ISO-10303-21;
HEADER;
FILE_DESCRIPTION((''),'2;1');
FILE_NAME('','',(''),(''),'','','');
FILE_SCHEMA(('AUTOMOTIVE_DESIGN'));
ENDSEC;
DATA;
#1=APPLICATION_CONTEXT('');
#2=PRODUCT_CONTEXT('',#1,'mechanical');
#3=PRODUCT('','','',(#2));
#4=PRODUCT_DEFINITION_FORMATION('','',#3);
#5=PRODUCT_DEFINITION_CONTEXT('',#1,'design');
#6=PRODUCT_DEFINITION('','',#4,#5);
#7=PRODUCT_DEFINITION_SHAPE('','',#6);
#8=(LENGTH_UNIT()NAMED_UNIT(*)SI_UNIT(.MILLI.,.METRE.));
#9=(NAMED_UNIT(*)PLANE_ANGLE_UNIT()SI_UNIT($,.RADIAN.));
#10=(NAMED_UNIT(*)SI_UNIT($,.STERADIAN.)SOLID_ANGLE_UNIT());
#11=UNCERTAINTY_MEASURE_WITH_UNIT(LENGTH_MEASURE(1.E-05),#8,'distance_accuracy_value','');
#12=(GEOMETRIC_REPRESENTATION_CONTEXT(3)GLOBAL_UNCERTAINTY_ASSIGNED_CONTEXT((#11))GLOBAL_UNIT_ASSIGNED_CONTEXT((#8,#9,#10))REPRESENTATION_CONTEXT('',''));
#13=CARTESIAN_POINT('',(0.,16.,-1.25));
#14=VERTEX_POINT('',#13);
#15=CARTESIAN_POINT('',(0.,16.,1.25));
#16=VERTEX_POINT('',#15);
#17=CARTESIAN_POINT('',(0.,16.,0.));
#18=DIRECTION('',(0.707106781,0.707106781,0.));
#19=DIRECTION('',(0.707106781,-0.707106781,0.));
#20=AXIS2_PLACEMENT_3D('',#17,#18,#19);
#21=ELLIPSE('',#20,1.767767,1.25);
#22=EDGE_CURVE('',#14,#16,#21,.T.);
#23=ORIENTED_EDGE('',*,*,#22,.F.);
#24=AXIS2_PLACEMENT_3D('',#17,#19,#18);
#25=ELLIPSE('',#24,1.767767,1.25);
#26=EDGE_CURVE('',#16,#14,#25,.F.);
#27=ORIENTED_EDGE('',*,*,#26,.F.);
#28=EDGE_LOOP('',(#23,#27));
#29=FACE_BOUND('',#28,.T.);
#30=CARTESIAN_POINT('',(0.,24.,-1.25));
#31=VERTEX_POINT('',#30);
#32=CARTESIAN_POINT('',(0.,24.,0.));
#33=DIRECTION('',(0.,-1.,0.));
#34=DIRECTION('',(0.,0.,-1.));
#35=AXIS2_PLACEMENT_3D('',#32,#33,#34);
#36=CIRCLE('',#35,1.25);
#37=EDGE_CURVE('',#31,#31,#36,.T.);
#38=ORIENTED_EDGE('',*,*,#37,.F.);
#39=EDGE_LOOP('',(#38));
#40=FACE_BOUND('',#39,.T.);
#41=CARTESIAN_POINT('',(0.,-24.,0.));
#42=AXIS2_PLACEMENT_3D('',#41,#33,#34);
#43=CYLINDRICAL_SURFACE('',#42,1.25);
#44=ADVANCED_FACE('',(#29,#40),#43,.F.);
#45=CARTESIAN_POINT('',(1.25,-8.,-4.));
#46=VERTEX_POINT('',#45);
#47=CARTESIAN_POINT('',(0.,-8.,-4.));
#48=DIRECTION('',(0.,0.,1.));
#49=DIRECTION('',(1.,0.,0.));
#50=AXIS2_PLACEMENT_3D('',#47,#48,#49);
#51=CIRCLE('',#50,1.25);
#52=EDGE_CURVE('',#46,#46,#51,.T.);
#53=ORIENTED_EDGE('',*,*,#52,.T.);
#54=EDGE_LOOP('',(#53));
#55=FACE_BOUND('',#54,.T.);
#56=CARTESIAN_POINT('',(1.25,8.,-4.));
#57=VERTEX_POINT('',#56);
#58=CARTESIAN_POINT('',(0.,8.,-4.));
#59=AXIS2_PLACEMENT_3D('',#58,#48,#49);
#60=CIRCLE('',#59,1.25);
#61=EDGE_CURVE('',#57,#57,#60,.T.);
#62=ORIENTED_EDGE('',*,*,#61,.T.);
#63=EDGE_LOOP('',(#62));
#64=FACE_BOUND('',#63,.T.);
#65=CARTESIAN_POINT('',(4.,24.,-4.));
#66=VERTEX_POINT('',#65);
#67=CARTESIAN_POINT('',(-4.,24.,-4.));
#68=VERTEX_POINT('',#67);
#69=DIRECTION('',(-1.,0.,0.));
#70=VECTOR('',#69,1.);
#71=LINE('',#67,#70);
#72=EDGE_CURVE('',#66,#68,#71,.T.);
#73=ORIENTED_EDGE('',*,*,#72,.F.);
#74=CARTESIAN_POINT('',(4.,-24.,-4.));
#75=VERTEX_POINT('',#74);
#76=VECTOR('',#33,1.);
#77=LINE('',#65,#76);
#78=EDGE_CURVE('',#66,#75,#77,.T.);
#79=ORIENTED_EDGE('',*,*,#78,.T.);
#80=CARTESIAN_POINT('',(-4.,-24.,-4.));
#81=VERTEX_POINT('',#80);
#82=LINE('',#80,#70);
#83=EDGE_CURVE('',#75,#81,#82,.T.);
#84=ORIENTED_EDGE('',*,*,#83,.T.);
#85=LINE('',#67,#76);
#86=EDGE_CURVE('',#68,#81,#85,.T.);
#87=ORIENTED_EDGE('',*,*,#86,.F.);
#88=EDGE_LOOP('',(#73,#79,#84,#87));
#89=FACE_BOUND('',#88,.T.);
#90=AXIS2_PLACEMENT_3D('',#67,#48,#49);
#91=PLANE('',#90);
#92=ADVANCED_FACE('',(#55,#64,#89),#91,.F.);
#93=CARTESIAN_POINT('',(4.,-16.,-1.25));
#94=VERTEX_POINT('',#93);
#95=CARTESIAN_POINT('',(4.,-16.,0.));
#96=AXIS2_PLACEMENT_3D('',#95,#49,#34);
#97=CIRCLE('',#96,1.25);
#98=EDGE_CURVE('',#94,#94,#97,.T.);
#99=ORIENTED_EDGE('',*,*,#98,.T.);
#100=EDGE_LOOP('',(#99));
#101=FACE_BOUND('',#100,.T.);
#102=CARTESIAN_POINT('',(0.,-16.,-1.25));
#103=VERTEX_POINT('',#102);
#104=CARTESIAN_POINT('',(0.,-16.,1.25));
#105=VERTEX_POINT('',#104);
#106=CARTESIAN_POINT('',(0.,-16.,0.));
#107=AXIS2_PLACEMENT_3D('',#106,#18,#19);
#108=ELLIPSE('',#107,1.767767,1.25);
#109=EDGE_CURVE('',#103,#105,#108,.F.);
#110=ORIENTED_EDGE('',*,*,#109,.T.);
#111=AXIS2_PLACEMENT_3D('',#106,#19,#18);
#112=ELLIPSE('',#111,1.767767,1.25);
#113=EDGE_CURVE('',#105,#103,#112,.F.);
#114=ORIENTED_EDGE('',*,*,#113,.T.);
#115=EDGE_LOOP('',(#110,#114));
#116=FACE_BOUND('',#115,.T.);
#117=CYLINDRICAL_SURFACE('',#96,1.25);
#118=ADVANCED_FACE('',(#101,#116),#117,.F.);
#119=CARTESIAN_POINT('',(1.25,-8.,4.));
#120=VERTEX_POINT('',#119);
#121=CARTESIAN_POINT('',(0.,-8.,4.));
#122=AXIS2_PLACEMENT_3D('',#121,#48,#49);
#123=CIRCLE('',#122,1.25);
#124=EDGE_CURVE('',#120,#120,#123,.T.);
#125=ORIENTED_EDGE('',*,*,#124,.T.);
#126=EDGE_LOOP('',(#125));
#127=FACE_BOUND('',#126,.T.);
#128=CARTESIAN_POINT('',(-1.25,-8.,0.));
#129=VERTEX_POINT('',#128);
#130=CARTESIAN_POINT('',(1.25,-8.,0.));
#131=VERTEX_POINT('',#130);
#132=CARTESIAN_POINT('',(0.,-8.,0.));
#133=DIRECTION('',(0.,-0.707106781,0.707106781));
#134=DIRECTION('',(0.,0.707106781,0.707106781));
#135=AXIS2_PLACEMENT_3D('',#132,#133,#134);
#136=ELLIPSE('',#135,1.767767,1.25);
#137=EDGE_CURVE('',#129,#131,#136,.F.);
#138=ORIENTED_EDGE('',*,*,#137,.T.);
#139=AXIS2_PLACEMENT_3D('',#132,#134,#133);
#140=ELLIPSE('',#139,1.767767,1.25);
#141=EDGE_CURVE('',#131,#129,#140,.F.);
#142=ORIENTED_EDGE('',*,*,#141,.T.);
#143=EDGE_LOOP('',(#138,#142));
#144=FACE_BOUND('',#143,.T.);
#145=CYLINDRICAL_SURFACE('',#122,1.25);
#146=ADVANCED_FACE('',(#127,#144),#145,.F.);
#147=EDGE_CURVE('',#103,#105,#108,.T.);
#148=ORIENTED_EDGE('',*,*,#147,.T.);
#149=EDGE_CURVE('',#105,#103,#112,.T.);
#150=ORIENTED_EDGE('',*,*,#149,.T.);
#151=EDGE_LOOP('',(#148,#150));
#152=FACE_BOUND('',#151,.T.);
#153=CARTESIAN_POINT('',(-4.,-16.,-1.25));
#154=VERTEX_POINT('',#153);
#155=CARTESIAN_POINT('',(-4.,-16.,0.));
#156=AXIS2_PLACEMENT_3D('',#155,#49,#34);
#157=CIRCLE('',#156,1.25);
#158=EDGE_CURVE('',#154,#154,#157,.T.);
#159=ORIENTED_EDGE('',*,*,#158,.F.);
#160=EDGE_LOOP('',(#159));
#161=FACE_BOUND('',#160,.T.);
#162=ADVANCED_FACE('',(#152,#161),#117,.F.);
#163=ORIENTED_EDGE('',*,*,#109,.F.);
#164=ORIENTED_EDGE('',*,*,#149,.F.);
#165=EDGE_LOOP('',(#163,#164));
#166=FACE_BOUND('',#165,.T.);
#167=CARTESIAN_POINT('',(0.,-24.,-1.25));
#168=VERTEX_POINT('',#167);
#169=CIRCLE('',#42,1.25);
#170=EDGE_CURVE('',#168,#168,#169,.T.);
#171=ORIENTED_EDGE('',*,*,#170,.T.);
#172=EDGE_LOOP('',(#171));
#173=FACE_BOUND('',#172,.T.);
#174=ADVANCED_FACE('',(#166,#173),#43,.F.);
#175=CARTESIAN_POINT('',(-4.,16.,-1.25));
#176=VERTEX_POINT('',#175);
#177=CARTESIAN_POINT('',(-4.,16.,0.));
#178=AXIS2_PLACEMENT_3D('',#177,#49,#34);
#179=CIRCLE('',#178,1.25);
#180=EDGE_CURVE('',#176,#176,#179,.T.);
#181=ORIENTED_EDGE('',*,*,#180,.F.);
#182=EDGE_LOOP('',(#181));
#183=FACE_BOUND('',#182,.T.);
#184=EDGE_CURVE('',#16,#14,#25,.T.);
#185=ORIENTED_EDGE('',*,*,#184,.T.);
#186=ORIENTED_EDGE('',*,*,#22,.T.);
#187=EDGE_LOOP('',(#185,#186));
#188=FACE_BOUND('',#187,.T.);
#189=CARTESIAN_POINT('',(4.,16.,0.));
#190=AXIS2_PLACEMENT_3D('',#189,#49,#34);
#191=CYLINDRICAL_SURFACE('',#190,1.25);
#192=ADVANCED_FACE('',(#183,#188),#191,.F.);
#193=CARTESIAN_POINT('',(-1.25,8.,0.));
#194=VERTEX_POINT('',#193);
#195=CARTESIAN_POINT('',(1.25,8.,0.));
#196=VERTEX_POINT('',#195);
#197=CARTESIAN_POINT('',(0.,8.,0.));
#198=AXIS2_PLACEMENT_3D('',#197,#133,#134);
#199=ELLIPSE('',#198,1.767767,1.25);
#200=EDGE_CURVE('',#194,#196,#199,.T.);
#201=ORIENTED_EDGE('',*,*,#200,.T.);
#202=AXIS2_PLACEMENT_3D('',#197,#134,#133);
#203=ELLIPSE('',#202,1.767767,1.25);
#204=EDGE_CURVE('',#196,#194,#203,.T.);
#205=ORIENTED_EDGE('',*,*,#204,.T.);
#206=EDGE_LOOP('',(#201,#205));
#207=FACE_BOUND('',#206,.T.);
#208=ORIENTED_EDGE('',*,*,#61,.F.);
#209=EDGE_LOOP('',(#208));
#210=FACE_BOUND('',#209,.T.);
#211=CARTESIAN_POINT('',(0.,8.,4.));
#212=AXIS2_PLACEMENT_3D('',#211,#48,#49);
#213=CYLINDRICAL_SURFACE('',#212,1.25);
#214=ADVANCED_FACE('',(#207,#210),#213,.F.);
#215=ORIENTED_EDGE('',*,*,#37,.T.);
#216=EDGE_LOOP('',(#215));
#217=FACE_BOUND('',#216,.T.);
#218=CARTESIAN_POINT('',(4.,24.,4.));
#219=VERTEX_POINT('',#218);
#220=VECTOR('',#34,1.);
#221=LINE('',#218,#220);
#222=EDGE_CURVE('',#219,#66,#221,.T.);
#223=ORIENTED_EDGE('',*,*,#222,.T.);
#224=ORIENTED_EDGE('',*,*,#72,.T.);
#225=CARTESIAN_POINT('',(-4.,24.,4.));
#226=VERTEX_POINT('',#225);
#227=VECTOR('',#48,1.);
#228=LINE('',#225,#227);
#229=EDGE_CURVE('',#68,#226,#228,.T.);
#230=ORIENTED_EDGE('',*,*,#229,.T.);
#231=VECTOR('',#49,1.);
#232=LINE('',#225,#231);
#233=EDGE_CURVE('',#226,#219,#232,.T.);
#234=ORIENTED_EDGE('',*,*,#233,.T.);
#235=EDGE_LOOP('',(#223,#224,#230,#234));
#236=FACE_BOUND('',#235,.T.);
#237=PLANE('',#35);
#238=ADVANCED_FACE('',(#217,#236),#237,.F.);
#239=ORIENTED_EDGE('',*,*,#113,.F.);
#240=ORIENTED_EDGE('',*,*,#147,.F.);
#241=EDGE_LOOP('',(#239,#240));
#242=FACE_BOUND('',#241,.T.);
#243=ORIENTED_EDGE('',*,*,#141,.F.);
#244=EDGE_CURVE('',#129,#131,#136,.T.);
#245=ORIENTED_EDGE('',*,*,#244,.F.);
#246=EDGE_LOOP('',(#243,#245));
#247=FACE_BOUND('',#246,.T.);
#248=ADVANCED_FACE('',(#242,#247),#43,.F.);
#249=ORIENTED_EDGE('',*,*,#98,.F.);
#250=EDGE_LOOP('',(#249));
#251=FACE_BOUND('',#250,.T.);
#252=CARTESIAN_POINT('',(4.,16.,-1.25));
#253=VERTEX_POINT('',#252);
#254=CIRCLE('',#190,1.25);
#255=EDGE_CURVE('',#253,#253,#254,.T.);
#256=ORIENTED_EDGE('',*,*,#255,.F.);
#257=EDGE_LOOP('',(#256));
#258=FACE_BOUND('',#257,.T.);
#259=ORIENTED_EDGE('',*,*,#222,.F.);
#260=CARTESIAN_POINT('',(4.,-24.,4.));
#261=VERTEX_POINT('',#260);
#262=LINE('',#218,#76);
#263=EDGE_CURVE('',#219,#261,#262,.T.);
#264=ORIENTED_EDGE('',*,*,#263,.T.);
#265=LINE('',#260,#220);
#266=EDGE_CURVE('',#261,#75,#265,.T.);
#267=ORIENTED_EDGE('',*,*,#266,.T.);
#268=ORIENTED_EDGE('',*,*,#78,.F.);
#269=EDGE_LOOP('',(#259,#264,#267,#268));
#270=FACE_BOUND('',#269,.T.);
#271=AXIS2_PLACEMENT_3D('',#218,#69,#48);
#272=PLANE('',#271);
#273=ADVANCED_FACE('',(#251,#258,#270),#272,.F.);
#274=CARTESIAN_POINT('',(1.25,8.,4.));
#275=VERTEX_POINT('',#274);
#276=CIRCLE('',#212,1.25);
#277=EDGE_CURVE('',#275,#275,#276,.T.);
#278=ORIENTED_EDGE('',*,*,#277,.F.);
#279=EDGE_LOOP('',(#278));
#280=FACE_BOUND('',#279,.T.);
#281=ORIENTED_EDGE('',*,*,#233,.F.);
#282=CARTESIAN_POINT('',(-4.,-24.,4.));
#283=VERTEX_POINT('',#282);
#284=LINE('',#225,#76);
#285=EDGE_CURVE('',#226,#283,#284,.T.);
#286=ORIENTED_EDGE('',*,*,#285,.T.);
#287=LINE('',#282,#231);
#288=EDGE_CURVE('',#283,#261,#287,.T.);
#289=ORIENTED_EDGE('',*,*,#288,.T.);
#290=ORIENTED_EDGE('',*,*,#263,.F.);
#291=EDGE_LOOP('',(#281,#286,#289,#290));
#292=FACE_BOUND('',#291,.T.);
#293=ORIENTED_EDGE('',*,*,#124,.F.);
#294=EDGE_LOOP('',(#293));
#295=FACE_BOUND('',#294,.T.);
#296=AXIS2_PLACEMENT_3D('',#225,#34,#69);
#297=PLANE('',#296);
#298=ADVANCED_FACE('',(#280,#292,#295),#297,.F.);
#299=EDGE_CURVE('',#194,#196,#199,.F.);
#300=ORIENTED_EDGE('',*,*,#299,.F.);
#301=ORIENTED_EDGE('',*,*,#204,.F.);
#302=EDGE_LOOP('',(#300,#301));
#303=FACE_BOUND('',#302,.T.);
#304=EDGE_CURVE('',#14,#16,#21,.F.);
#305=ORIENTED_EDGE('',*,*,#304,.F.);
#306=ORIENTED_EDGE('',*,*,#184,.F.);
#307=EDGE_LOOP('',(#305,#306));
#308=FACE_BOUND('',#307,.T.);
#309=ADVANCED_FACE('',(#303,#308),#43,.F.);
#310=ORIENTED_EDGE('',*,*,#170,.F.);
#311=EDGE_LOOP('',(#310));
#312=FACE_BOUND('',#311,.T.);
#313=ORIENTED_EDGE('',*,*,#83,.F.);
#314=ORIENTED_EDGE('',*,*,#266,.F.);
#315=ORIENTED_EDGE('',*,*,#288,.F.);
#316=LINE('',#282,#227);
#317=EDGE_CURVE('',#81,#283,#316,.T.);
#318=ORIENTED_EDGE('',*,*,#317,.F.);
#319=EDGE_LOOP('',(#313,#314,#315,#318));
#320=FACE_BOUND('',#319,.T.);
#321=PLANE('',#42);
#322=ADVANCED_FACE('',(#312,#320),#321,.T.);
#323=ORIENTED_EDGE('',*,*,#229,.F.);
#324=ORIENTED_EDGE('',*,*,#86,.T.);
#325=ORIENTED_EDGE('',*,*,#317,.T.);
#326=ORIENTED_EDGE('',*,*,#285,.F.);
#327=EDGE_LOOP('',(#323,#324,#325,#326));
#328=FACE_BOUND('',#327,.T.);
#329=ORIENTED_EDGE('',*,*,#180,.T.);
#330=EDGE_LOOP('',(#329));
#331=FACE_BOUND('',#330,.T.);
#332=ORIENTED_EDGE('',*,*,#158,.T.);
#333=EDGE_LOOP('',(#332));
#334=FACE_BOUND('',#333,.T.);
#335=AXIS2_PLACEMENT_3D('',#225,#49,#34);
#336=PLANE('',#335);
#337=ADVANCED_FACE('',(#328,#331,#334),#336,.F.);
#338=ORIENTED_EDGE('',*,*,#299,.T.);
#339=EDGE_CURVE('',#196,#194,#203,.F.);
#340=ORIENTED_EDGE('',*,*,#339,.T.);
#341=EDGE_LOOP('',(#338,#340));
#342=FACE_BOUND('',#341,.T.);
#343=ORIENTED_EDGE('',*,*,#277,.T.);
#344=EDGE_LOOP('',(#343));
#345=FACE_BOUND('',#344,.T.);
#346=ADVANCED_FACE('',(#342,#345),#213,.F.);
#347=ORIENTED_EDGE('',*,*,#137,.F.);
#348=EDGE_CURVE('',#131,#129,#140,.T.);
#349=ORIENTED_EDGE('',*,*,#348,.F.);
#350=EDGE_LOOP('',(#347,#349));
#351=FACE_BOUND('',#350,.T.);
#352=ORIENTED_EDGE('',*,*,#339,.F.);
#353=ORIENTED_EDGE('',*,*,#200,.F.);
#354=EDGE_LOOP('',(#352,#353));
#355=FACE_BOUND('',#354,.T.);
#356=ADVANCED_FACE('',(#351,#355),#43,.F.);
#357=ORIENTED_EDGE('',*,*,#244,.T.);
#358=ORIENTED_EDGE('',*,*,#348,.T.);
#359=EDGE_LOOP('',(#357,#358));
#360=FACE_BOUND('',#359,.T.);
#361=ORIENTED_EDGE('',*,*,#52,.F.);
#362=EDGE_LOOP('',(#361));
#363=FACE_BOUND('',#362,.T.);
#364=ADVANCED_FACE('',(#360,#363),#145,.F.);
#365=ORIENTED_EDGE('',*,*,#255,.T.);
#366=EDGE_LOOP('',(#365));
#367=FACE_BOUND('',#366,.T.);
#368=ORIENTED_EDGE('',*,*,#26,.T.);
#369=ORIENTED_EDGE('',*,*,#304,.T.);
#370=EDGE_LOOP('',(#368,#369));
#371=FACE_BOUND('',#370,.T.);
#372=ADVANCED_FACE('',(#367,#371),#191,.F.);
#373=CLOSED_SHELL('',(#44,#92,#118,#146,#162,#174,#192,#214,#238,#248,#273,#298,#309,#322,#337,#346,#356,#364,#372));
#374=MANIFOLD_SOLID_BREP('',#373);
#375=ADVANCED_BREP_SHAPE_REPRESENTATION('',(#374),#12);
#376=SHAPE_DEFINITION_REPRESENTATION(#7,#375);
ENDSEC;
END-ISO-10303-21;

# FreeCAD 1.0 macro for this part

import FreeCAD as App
import Part
import Sketcher

doc = App.newDocument("Part")
body = doc.addObject("PartDesign::Body", "Body")

sketch1 = doc.addObject("Sketcher::SketchObject", "Sketch")
body.addObject(sketch1)
sketch1.AttachmentSupport = (doc.XZ_Plane, [""])
sketch1.MapMode = "FlatFace"
sketch1.addGeometry([
    Part.LineSegment(App.Vector(-4, -4, 0), App.Vector(-4, 4, 0)),
    Part.LineSegment(App.Vector(-4, 4, 0), App.Vector(4, 4, 0)),
    Part.LineSegment(App.Vector(4, 4, 0), App.Vector(4, -4, 0)),
    Part.LineSegment(App.Vector(4, -4, 0), App.Vector(-4, -4, 0)),
], False)
sketch1.addConstraint([
    Sketcher.Constraint("Coincident", 0, 2, 1, 1),
    Sketcher.Constraint("Coincident", 1, 2, 2, 1),
    Sketcher.Constraint("Coincident", 2, 2, 3, 1),
    Sketcher.Constraint("Coincident", 3, 2, 0, 1),
    Sketcher.Constraint("Vertical", 0),
    Sketcher.Constraint("Horizontal", 1),
    Sketcher.Constraint("Vertical", 2),
    Sketcher.Constraint("Horizontal", 3),
    Sketcher.Constraint("Symmetric", 0, 2, 2, 2, -1, 1),
    Sketcher.Constraint("Equal", 3, 0),
    Sketcher.Constraint("DistanceX", 1, 1, 1, 2, 8.0),
])
pad1 = doc.addObject("PartDesign::Pad", "Pad")
body.addObject(pad1)
pad1.Profile = sketch1
pad1.Length = 48
pad1.Midplane = True

sketch2 = doc.addObject("Sketcher::SketchObject", "Sketch001")
body.addObject(sketch2)
sketch2.AttachmentSupport = (doc.XY_Plane, [""])
sketch2.MapMode = "FlatFace"
sketch2.AttachmentOffset = App.Placement(App.Vector(0, 0, 4), App.Rotation())
sketch2.addGeometry([
    Part.Circle(App.Vector(0, 8, 0), App.Vector(0, 0, 1), 1.2),
    Part.Circle(App.Vector(0, -8, 0), App.Vector(0, 0, 1), 1.2),
], False)
sketch2.addConstraint([
    Sketcher.Constraint("Equal", 0, 1),
    Sketcher.Constraint("Symmetric", 0, 3, 1, 3, -1, 1),
    Sketcher.Constraint("PointOnObject", 0, 3, -2),
    Sketcher.Constraint("Diameter", 0, 2.5),
    Sketcher.Constraint("DistanceY", -1, 1, 0, 3, 8.0),
])
doc.recompute()
hole = doc.addObject("PartDesign::Hole", "Hole")
body.addObject(hole)
hole.Profile = sketch2
hole.ThreadType = "None"
hole.Diameter = 2.5
hole.DepthType = "ThroughAll"

sketch3 = doc.addObject("Sketcher::SketchObject", "Sketch002")
body.addObject(sketch3)
sketch3.AttachmentSupport = (doc.YZ_Plane, [""])
sketch3.MapMode = "FlatFace"
sketch3.AttachmentOffset = App.Placement(App.Vector(0, 0, 4), App.Rotation())
sketch3.addGeometry([
    Part.Circle(App.Vector(16, 0, 0), App.Vector(0, 0, 1), 1.2),
    Part.Circle(App.Vector(-16, 0, 0), App.Vector(0, 0, 1), 1.2),
], False)
sketch3.addConstraint([
    Sketcher.Constraint("Equal", 0, 1),
    Sketcher.Constraint("Symmetric", 0, 3, 1, 3, -1, 1),
    Sketcher.Constraint("PointOnObject", 0, 3, -1),
    Sketcher.Constraint("Diameter", 0, 2.5),
    Sketcher.Constraint("DistanceX", -1, 1, 0, 3, 16.0),
])
doc.recompute()
hole2 = doc.addObject("PartDesign::Hole", "Hole001")
body.addObject(hole2)
hole2.Profile = sketch3
hole2.ThreadType = "None"
hole2.Diameter = 2.5
hole2.DepthType = "ThroughAll"

sketch4 = doc.addObject("Sketcher::SketchObject", "Sketch003")
body.addObject(sketch4)
sketch4.AttachmentSupport = (doc.XZ_Plane, [""])
sketch4.MapMode = "FlatFace"
sketch4.AttachmentOffset = App.Placement(App.Vector(0, 0, 24), App.Rotation())
sketch4.addGeometry(Part.Circle(App.Vector(0, 0, 0), App.Vector(0, 0, 1), 1.2), False)
sketch4.addConstraint([
    Sketcher.Constraint("Coincident", 0, 3, -1, 1),
    Sketcher.Constraint("Diameter", 0, 2.5),
])
doc.recompute()
hole3 = doc.addObject("PartDesign::Hole", "Hole002")
body.addObject(hole3)
hole3.Profile = sketch4
hole3.ThreadType = "None"
hole3.Diameter = 2.5
hole3.DepthType = "ThroughAll"

doc.recompute()
